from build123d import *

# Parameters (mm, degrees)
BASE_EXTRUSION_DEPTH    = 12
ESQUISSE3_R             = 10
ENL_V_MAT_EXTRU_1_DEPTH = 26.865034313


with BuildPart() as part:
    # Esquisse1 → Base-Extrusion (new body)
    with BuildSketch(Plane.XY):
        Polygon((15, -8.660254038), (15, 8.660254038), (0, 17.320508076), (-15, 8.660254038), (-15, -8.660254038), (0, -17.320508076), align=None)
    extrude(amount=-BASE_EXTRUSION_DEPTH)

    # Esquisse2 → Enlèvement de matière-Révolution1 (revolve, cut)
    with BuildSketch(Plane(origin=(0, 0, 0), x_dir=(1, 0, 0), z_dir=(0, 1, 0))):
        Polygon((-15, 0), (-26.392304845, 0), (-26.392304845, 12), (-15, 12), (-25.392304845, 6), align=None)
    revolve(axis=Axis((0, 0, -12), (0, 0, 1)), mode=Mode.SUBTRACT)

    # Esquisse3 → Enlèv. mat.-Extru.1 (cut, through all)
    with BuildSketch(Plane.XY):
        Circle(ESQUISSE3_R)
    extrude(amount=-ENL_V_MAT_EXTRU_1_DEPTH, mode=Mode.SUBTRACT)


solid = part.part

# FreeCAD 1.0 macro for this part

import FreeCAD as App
import Part
import Sketcher
from FreeCAD import Vector
Q = App.Units.Quantity


def add_polygon(sketch, points):
    """Adds a closed chain of lines whose ends are joined by coincident constraints."""
    first, n = sketch.GeometryCount, len(points)
    for a, b in zip(points, points[1:] + points[:1]):
        sketch.addGeometry(Part.LineSegment(App.Vector(*a, 0), App.Vector(*b, 0)), False)
    for i in range(n):
        sketch.addConstraint(Sketcher.Constraint("Coincident", first + i, 2, first + (i + 1) % n, 1))

doc = App.newDocument("Part")
body = doc.addObject("PartDesign::Body", "Body")

# Sketch on XY plane
sketch1 = body.newObject("Sketcher::SketchObject", "Sketch")
sketch1.AttachmentSupport = (doc.getObject("XY_Plane"), [""])
sketch1.MapMode = "FlatFace"
add_polygon(sketch1, [(15, -9), (15, 9), (0, 17), (-15, 9), (-15, -9), (0, -17)])  # lines 0-5
sketch1.addConstraint(Sketcher.Constraint("Vertical", 0))
sketch1.addConstraint(Sketcher.Constraint("Vertical", 3))
sketch1.addConstraint(Sketcher.Constraint("Symmetric", 0, 2, 3, 2, -1, 1))
sketch1.addConstraint(Sketcher.Constraint("Symmetric", 1, 2, 4, 2, -1, 1))
sketch1.addConstraint(Sketcher.Constraint("PointOnObject", 1, 2, -2))
sketch1.addConstraint(Sketcher.Constraint("Parallel", 2, 5))
sketch1.addConstraint(Sketcher.Constraint("Horizontal", 0, 2, 2, 2))
sketch1.addConstraint(Sketcher.Constraint("Angle", 1, Q("150 deg")))
sketch1.addConstraint(Sketcher.Constraint("DistanceX", -1, 1, 0, 2, 15.0))
sketch1.addConstraint(Sketcher.Constraint("DistanceY", 0, 1, 0, 2, 17.320508))
pad1 = body.newObject("PartDesign::Pad", "Pad")
pad1.Profile = sketch1
pad1.Length = 12
pad1.Reversed = True

# Sketch on XZ plane
sketch2 = body.newObject("Sketcher::SketchObject", "Sketch001")
sketch2.AttachmentSupport = (doc.getObject("XZ_Plane"), [""])
sketch2.MapMode = "FlatFace"
add_polygon(sketch2, [(-26, 0), (-15, 0), (-25, -6), (-15, -12), (-26, -12)])  # lines 0-4
sketch2.addConstraint(Sketcher.Constraint("Horizontal", 0))
sketch2.addConstraint(Sketcher.Constraint("Horizontal", 3))
sketch2.addConstraint(Sketcher.Constraint("Vertical", 4))
sketch2.addConstraint(Sketcher.Constraint("PointOnObject", 0, 2, -1))
sketch2.addConstraint(Sketcher.Constraint("Vertical", 0, 2, 2, 2))
sketch2.addConstraint(Sketcher.Constraint("Equal", 1, 2))
sketch2.addConstraint(Sketcher.Constraint("DistanceY", 4, 1, 4, 2, 12.0))
sketch2.addConstraint(Sketcher.Constraint("Angle", 1, Q("-150 deg")))
sketch2.addConstraint(Sketcher.Constraint("DistanceX", 0, 2, -1, 1, 15.0))
sketch2.addConstraint(Sketcher.Constraint("DistanceX", 3, 2, 1, 2, 1.0))
groove = body.newObject("PartDesign::Groove", "Groove")
groove.Profile = sketch2
groove.ReferenceAxis = (sketch2, ["V_Axis"])
groove.Angle = 360

# Sketch on XY plane
sketch3 = body.newObject("Sketcher::SketchObject", "Sketch002")
sketch3.AttachmentSupport = (doc.getObject("XY_Plane"), [""])
sketch3.MapMode = "FlatFace"
sketch3.addGeometry(Part.Circle(Vector(0, 0, 0), Vector(0, 0, 1), 10), False)
sketch3.addConstraint(Sketcher.Constraint("Coincident", 0, 3, -1, 1))
sketch3.addConstraint(Sketcher.Constraint("Diameter", 0, 20.0))
pocket1 = body.newObject("PartDesign::Pocket", "Pocket")
pocket1.Profile = sketch3
pocket1.Type = "ThroughAll"

doc.recompute()
